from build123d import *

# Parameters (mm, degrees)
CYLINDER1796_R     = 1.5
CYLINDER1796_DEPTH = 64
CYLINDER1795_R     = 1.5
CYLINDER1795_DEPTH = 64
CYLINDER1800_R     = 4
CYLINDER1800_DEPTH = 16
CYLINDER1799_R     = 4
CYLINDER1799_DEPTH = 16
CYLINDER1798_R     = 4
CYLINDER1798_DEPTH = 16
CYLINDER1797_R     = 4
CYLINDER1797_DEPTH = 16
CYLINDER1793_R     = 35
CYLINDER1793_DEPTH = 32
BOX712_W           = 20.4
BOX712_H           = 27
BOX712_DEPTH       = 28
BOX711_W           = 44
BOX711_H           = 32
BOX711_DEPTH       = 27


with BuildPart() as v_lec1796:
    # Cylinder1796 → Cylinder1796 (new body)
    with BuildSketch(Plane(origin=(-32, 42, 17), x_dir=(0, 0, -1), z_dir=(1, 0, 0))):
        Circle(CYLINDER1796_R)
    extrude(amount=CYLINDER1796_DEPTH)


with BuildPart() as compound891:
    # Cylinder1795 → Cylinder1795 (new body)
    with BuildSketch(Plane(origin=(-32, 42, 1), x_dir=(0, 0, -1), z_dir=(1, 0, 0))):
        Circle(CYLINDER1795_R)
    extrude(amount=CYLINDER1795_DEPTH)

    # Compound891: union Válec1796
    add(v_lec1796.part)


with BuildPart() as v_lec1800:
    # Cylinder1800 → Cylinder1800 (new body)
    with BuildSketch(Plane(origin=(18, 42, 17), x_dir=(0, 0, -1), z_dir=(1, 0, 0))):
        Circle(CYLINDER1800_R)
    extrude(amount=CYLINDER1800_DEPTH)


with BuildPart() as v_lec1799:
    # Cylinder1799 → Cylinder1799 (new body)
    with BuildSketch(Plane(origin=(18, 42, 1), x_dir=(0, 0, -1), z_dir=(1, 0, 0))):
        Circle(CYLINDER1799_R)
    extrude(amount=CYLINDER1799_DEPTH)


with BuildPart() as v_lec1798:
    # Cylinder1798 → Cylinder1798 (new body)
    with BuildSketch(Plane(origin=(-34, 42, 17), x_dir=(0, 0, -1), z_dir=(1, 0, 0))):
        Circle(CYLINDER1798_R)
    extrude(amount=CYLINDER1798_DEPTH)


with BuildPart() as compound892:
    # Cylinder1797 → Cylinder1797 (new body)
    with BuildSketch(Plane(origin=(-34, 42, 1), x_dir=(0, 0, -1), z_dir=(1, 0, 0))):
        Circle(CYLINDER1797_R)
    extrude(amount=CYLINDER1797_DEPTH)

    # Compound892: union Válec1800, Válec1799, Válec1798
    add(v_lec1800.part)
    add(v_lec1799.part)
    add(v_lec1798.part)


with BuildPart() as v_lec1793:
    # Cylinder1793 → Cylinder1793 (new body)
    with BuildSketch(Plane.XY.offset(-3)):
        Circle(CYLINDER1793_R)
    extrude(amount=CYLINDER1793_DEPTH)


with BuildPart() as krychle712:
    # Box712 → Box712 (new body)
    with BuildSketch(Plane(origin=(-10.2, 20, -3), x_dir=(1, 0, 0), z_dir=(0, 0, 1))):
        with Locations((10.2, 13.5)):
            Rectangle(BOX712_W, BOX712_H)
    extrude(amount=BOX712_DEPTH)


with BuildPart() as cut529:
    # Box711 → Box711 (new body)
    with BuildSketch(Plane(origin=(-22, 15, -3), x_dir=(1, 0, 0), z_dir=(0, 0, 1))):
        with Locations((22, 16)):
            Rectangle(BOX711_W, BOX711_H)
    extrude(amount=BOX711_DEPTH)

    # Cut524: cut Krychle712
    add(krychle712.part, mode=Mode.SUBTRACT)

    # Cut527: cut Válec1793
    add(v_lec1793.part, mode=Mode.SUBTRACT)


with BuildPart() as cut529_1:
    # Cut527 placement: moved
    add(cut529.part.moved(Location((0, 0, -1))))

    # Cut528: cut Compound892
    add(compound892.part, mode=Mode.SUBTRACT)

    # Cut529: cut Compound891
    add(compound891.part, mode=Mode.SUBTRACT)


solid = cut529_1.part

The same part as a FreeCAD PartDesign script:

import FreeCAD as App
import Part
import Sketcher
from FreeCAD import Vector

doc = App.newDocument("Part")
body = doc.addObject("PartDesign::Body", "Body")

# Sketch on YZ plane
sketch1 = body.newObject("Sketcher::SketchObject", "Sketch")
sketch1.AttachmentSupport = (doc.getObject("YZ_Plane"), [""])
sketch1.MapMode = "FlatFace"
sketch1.AttachmentOffset = App.Placement(Vector(0, 0, -32), App.Rotation())
sketch1.addGeometry(Part.Circle(Vector(42, 17, 0), Vector(0, 0, 1), 1.5), False)
sketch1.addConstraint([
    Sketcher.Constraint("Diameter", 0, 3.0),
    Sketcher.Constraint("DistanceX", -1, 1, 0, 3, 42.0),
    Sketcher.Constraint("DistanceY", -1, 1, 0, 3, 17.0),
])
pad1 = body.newObject("PartDesign::Pad", "Pad")
pad1.Profile = sketch1
pad1.Length = 64
body2 = doc.addObject("PartDesign::Body", "Body001")
body2.AllowCompound = True

# Sketch on YZ plane
sketch2 = body2.newObject("Sketcher::SketchObject", "Sketch001")
sketch2.AttachmentSupport = (doc.getObject("YZ_Plane001"), [""])
sketch2.MapMode = "FlatFace"
sketch2.AttachmentOffset = App.Placement(Vector(0, 0, -32), App.Rotation())
sketch2.addGeometry(Part.Circle(Vector(42, 1, 0), Vector(0, 0, 1), 1.5), False)
sketch2.addConstraint([
    Sketcher.Constraint("Diameter", 0, 3.0),
    Sketcher.Constraint("DistanceX", -1, 1, 0, 3, 42.0),
    Sketcher.Constraint("DistanceY", -1, 1, 0, 3, 1.0),
])
pad2 = body2.newObject("PartDesign::Pad", "Pad001")
pad2.Profile = sketch2
pad2.Length = 64
doc.recompute()

boolean = body2.newObject("PartDesign::Boolean", "Boolean")
boolean.Type = "Fuse"
boolean.addObjects([body])
body3 = doc.addObject("PartDesign::Body", "Body002")

# Sketch on YZ plane
sketch3 = body3.newObject("Sketcher::SketchObject", "Sketch002")
sketch3.AttachmentSupport = (doc.getObject("YZ_Plane002"), [""])
sketch3.MapMode = "FlatFace"
sketch3.AttachmentOffset = App.Placement(Vector(0, 0, 18), App.Rotation())
sketch3.addGeometry(Part.Circle(Vector(42, 17, 0), Vector(0, 0, 1), 4), False)
sketch3.addConstraint([
    Sketcher.Constraint("Diameter", 0, 8.0),
    Sketcher.Constraint("DistanceX", -1, 1, 0, 3, 42.0),
    Sketcher.Constraint("DistanceY", -1, 1, 0, 3, 17.0),
])
pad3 = body3.newObject("PartDesign::Pad", "Pad002")
pad3.Profile = sketch3
pad3.Length = 16
body4 = doc.addObject("PartDesign::Body", "Body003")

# Sketch on YZ plane
sketch4 = body4.newObject("Sketcher::SketchObject", "Sketch003")
sketch4.AttachmentSupport = (doc.getObject("YZ_Plane003"), [""])
sketch4.MapMode = "FlatFace"
sketch4.AttachmentOffset = App.Placement(Vector(0, 0, 18), App.Rotation())
sketch4.addGeometry(Part.Circle(Vector(42, 1, 0), Vector(0, 0, 1), 4), False)
sketch4.addConstraint([
    Sketcher.Constraint("Diameter", 0, 8.0),
    Sketcher.Constraint("DistanceX", -1, 1, 0, 3, 42.0),
    Sketcher.Constraint("DistanceY", -1, 1, 0, 3, 1.0),
])
pad4 = body4.newObject("PartDesign::Pad", "Pad003")
pad4.Profile = sketch4
pad4.Length = 16
body5 = doc.addObject("PartDesign::Body", "Body004")

# Sketch on YZ plane
sketch5 = body5.newObject("Sketcher::SketchObject", "Sketch004")
sketch5.AttachmentSupport = (doc.getObject("YZ_Plane004"), [""])
sketch5.MapMode = "FlatFace"
sketch5.AttachmentOffset = App.Placement(Vector(0, 0, -34), App.Rotation())
sketch5.addGeometry(Part.Circle(Vector(42, 17, 0), Vector(0, 0, 1), 4), False)
sketch5.addConstraint([
    Sketcher.Constraint("Diameter", 0, 8.0),
    Sketcher.Constraint("DistanceX", -1, 1, 0, 3, 42.0),
    Sketcher.Constraint("DistanceY", -1, 1, 0, 3, 17.0),
])
pad5 = body5.newObject("PartDesign::Pad", "Pad004")
pad5.Profile = sketch5
pad5.Length = 16
body6 = doc.addObject("PartDesign::Body", "Body005")
body6.AllowCompound = True

# Sketch on YZ plane
sketch6 = body6.newObject("Sketcher::SketchObject", "Sketch005")
sketch6.AttachmentSupport = (doc.getObject("YZ_Plane005"), [""])
sketch6.MapMode = "FlatFace"
sketch6.AttachmentOffset = App.Placement(Vector(0, 0, -34), App.Rotation())
sketch6.addGeometry(Part.Circle(Vector(42, 1, 0), Vector(0, 0, 1), 4), False)
sketch6.addConstraint([
    Sketcher.Constraint("Diameter", 0, 8.0),
    Sketcher.Constraint("DistanceX", -1, 1, 0, 3, 42.0),
    Sketcher.Constraint("DistanceY", -1, 1, 0, 3, 1.0),
])
pad6 = body6.newObject("PartDesign::Pad", "Pad005")
pad6.Profile = sketch6
pad6.Length = 16
doc.recompute()

boolean2 = body6.newObject("PartDesign::Boolean", "Boolean001")
boolean2.Type = "Fuse"
boolean2.addObjects([body3])
doc.recompute()

boolean3 = body6.newObject("PartDesign::Boolean", "Boolean002")
boolean3.Type = "Fuse"
boolean3.addObjects([body4])
doc.recompute()

boolean4 = body6.newObject("PartDesign::Boolean", "Boolean003")
boolean4.Type = "Fuse"
boolean4.addObjects([body5])
body7 = doc.addObject("PartDesign::Body", "Body006")

# Sketch on XY plane
sketch7 = body7.newObject("Sketcher::SketchObject", "Sketch006")
sketch7.AttachmentSupport = (doc.getObject("XY_Plane006"), [""])
sketch7.MapMode = "FlatFace"
sketch7.AttachmentOffset = App.Placement(Vector(0, 0, -3), App.Rotation())
sketch7.addGeometry(Part.Circle(Vector(0, 0, 0), Vector(0, 0, 1), 35), False)
sketch7.addConstraint([
    Sketcher.Constraint("Coincident", 0, 3, -1, 1),
    Sketcher.Constraint("Diameter", 0, 70.0),
])
pad7 = body7.newObject("PartDesign::Pad", "Pad006")
pad7.Profile = sketch7
pad7.Length = 32
body8 = doc.addObject("PartDesign::Body", "Body007")

# Sketch on XY plane
sketch8 = body8.newObject("Sketcher::SketchObject", "Sketch007")
sketch8.AttachmentSupport = (doc.getObject("XY_Plane007"), [""])
sketch8.MapMode = "FlatFace"
sketch8.AttachmentOffset = App.Placement(Vector(0, 0, -3), App.Rotation())
sketch8.addGeometry([
    Part.LineSegment(Vector(-10, 47, 0), Vector(-10, 20, 0)),
    Part.LineSegment(Vector(-10, 20, 0), Vector(10, 20, 0)),
    Part.LineSegment(Vector(10, 20, 0), Vector(10, 47, 0)),
    Part.LineSegment(Vector(10, 47, 0), Vector(-10, 47, 0)),
], False)
sketch8.addConstraint([
    Sketcher.Constraint("Coincident", 0, 2, 1, 1),
    Sketcher.Constraint("Coincident", 1, 2, 2, 1),
    Sketcher.Constraint("Coincident", 2, 2, 3, 1),
    Sketcher.Constraint("Coincident", 3, 2, 0, 1),
    Sketcher.Constraint("Vertical", 0),
    Sketcher.Constraint("Horizontal", 1),
    Sketcher.Constraint("Vertical", 2),
    Sketcher.Constraint("Horizontal", 3),
    Sketcher.Constraint("DistanceY", 0, 2, 0, 1, 27.0),
    Sketcher.Constraint("DistanceX", 1, 1, 1, 2, 20.4),
    Sketcher.Constraint("DistanceY", -1, 1, 0, 2, 20.0),
    Sketcher.Constraint("DistanceX", 0, 2, -1, 1, 10.2),
])
pad8 = body8.newObject("PartDesign::Pad", "Pad007")
pad8.Profile = sketch8
pad8.Length = 28
body9 = doc.addObject("PartDesign::Body", "Body008")
body9.AllowCompound = True

# Sketch on XY plane
sketch9 = body9.newObject("Sketcher::SketchObject", "Sketch008")
sketch9.AttachmentSupport = (doc.getObject("XY_Plane008"), [""])
sketch9.MapMode = "FlatFace"
sketch9.AttachmentOffset = App.Placement(Vector(0, 0, -3), App.Rotation())
sketch9.addGeometry([
    Part.LineSegment(Vector(-22, 47, 0), Vector(-22, 15, 0)),
    Part.LineSegment(Vector(-22, 15, 0), Vector(22, 15, 0)),
    Part.LineSegment(Vector(22, 15, 0), Vector(22, 47, 0)),
    Part.LineSegment(Vector(22, 47, 0), Vector(-22, 47, 0)),
], False)
sketch9.addConstraint([
    Sketcher.Constraint("Coincident", 0, 2, 1, 1),
    Sketcher.Constraint("Coincident", 1, 2, 2, 1),
    Sketcher.Constraint("Coincident", 2, 2, 3, 1),
    Sketcher.Constraint("Coincident", 3, 2, 0, 1),
    Sketcher.Constraint("Vertical", 0),
    Sketcher.Constraint("Horizontal", 1),
    Sketcher.Constraint("Vertical", 2),
    Sketcher.Constraint("Horizontal", 3),
    Sketcher.Constraint("DistanceX", 1, 1, 1, 2, 44.0),
    Sketcher.Constraint("DistanceY", 0, 2, 0, 1, 32.0),
    Sketcher.Constraint("DistanceX", 0, 2, -1, 1, 22.0),
    Sketcher.Constraint("DistanceY", -1, 1, 0, 2, 15.0),
])
pad9 = body9.newObject("PartDesign::Pad", "Pad008")
pad9.Profile = sketch9
pad9.Length = 27
doc.recompute()

boolean5 = body9.newObject("PartDesign::Boolean", "Boolean004")
boolean5.Type = "Cut"
boolean5.addObjects([body8])
doc.recompute()

boolean6 = body9.newObject("PartDesign::Boolean", "Boolean005")
boolean6.Type = "Cut"
boolean6.addObjects([body7])
body10 = doc.addObject("PartDesign::Body", "Body009")
body10.AllowCompound = True
doc.recompute()

body9.Placement = App.Placement(Vector(0, 0, -1), App.Rotation(Vector(0, 0, 1), 0))
boolean7 = body10.newObject("PartDesign::Boolean", "Boolean006")
boolean7.Type = "Fuse"
boolean7.addObjects([body9])
doc.recompute()

boolean8 = body10.newObject("PartDesign::Boolean", "Boolean007")
boolean8.Type = "Cut"
boolean8.addObjects([body6])
doc.recompute()

boolean9 = body10.newObject("PartDesign::Boolean", "Boolean008")
boolean9.Type = "Cut"
boolean9.addObjects([body2])

doc.recompute()
